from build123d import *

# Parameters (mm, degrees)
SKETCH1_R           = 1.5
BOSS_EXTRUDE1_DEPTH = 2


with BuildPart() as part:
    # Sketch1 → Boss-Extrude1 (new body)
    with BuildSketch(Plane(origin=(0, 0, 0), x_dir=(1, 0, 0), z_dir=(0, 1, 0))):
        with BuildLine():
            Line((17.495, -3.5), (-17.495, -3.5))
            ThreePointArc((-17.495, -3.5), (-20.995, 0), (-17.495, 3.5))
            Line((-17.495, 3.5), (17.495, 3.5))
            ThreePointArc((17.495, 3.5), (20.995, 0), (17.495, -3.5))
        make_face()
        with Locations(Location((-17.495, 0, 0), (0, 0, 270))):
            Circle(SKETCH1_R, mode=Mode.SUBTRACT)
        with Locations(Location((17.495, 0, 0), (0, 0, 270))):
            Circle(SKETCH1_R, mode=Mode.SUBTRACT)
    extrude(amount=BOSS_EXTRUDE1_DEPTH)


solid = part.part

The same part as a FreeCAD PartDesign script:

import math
import FreeCAD as App
import Part
import Sketcher

doc = App.newDocument("Part")
params = doc.addObject("Spreadsheet::Sheet", "Params")
for row, (alias, value) in enumerate([
    ("sketch1_diameter", "3 mm"),
    ("sketch1_radius", "3.5 mm"),
    ("sketch1_width", "34.99 mm"),
    ("pad1_length", "2 mm"),
], start=1):
    params.set(f"A{row}", alias)
    params.set(f"B{row}", "=" + value)
    params.setAlias(f"B{row}", alias)

body = doc.addObject("PartDesign::Body", "Body")

sketch1 = doc.addObject("Sketcher::SketchObject", "Sketch")
body.addObject(sketch1)
sketch1.AttachmentSupport = (doc.XZ_Plane, [""])
sketch1.MapMode = "FlatFace"
sketch1.addGeometry(Part.LineSegment(App.Vector(-17.5, 3.5, 0), App.Vector(17.5, 3.5, 0)), False)
sketch1.addGeometry(Part.ArcOfCircle(Part.Circle(App.Vector(17.5, 0, 0), App.Vector(0, 0, 1), 3.5), math.radians(-90), math.radians(90)), False)
sketch1.addGeometry(Part.LineSegment(App.Vector(17.5, -3.5, 0), App.Vector(-17.5, -3.5, 0)), False)
sketch1.addGeometry(Part.ArcOfCircle(Part.Circle(App.Vector(-17.5, 0, 0), App.Vector(0, 0, 1), 3.5), math.radians(90), math.radians(270)), False)
sketch1.addGeometry(Part.Circle(App.Vector(17.5, 0, 0), App.Vector(0, 0, 1), 1.5), False)
sketch1.addGeometry(Part.Circle(App.Vector(-17.5, 0, 0), App.Vector(0, 0, 1), 1.5), False)
sketch1.addConstraint(Sketcher.Constraint("Tangent", 0, 2, 1, 2))
sketch1.addConstraint(Sketcher.Constraint("Tangent", 1, 1, 2, 1))
sketch1.addConstraint(Sketcher.Constraint("Tangent", 2, 2, 3, 2))
sketch1.addConstraint(Sketcher.Constraint("Tangent", 3, 1, 0, 1))
sketch1.addConstraint(Sketcher.Constraint("Horizontal", 0))
sketch1.addConstraint(Sketcher.Constraint("Horizontal", 2))
sketch1.addConstraint(Sketcher.Constraint("Coincident", 4, 3, 1, 3))
sketch1.addConstraint(Sketcher.Constraint("Coincident", 5, 3, 3, 3))
sketch1.addConstraint(Sketcher.Constraint("Equal", 4, 5))
sketch1.addConstraint(Sketcher.Constraint("Symmetric", 1, 3, 3, 3, -1, 1))
sketch1.addConstraint(Sketcher.Constraint("Diameter", 4, 3.0))
sketch1.addConstraint(Sketcher.Constraint("Radius", 1, 3.5))
sketch1.addConstraint(Sketcher.Constraint("DistanceX", 0, 1, 0, 2, 34.99))
sketch1.setExpression("Constraints[10]", "Params.sketch1_diameter")
sketch1.setExpression("Constraints[11]", "Params.sketch1_radius")
sketch1.setExpression("Constraints[12]", "Params.sketch1_width")
pad1 = doc.addObject("PartDesign::Pad", "Pad")
body.addObject(pad1)
pad1.Profile = sketch1
pad1.setExpression("Length", "Params.pad1_length")
pad1.Reversed = True

doc.recompute()
